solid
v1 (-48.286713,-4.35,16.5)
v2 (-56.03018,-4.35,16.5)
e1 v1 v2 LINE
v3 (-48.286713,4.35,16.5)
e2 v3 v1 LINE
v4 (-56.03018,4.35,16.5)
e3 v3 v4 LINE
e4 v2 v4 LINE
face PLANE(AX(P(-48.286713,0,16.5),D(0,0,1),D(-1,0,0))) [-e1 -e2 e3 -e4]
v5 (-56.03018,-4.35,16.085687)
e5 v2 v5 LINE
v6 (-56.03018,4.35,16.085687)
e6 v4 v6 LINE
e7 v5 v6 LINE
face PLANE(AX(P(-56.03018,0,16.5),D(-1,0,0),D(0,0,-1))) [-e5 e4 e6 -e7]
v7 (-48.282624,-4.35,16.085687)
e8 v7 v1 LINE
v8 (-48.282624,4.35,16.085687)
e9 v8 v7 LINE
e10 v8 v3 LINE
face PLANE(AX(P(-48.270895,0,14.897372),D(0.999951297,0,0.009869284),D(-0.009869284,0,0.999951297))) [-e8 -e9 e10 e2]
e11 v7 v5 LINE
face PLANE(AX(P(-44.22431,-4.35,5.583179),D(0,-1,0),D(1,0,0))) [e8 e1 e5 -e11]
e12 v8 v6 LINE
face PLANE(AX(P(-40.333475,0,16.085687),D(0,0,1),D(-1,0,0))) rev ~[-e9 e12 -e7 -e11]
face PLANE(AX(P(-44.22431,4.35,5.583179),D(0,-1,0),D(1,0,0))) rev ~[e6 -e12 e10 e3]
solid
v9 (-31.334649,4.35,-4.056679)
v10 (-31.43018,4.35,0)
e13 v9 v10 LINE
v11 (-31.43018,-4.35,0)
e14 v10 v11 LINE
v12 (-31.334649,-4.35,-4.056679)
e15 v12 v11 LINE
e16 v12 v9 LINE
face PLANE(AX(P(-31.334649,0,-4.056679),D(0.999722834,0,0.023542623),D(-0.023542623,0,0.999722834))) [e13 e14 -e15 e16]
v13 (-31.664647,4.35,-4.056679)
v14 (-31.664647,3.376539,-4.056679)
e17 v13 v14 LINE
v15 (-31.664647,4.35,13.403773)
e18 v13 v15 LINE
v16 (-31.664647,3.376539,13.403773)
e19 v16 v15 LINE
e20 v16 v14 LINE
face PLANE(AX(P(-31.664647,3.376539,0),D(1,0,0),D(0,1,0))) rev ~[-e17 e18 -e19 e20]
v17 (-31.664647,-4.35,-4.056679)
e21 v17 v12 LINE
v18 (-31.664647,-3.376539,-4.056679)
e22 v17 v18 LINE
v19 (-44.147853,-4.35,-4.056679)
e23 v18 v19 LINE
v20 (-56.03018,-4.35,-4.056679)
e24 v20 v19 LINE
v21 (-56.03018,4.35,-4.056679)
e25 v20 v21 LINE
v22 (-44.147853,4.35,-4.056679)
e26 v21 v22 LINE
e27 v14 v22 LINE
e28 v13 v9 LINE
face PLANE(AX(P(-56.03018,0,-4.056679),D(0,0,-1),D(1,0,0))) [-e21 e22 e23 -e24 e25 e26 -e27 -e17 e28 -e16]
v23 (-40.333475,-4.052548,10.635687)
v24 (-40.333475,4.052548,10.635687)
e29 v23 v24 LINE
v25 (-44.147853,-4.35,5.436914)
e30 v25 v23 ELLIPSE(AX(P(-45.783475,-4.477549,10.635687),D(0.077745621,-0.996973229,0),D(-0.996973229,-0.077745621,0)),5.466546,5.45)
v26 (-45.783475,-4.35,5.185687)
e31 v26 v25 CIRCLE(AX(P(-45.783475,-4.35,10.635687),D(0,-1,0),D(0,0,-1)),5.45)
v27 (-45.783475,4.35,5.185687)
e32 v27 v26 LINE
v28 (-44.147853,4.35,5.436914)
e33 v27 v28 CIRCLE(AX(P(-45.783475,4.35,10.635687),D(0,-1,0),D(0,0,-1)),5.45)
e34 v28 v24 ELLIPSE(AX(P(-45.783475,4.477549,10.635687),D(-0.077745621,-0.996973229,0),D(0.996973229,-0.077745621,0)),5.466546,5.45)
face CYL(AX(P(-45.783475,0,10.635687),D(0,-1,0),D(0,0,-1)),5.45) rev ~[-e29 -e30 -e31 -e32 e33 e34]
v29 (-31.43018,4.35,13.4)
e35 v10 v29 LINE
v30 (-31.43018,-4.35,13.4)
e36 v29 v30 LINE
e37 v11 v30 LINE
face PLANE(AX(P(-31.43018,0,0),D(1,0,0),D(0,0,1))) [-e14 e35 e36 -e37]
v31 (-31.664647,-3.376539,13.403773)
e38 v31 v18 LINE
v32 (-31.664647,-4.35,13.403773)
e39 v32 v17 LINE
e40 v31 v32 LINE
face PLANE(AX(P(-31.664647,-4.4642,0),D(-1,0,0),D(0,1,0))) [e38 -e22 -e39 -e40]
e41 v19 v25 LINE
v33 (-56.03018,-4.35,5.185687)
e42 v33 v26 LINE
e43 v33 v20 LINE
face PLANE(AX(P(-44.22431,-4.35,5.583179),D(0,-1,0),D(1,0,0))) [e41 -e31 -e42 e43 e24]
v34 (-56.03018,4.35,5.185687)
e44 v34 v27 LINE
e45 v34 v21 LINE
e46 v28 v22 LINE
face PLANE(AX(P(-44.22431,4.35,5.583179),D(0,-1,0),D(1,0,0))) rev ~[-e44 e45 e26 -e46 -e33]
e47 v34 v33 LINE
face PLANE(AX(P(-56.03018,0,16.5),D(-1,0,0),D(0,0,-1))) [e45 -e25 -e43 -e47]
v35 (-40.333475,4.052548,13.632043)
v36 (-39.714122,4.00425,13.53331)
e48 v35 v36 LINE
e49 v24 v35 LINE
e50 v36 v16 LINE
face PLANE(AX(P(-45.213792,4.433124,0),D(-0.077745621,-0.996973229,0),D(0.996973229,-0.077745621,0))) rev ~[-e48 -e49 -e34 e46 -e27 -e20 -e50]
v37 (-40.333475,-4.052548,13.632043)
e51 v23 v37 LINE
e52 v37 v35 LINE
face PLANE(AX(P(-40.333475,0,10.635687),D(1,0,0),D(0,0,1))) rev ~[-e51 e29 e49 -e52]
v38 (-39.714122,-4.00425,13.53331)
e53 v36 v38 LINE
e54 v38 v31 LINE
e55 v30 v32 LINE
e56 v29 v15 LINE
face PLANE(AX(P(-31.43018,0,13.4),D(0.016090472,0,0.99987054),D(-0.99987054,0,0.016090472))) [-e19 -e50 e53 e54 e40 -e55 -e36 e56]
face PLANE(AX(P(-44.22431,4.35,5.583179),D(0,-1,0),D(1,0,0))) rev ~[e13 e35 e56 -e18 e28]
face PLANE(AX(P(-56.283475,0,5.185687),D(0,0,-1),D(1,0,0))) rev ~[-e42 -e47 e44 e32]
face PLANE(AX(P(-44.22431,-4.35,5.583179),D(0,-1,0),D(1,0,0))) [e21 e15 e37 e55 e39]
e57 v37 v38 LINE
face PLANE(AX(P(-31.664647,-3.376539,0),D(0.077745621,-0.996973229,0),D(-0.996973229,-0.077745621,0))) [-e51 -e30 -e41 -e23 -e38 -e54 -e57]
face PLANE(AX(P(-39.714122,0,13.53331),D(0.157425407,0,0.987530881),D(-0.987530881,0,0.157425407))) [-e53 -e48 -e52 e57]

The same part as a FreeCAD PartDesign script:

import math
import FreeCAD as App
import Part
import Sketcher
from FreeCAD import Vector


def add_polygon(sketch, points):
    """Adds a closed chain of lines whose ends are joined by coincident constraints."""
    first, n = sketch.GeometryCount, len(points)
    for a, b in zip(points, points[1:] + points[:1]):
        sketch.addGeometry(Part.LineSegment(App.Vector(*a, 0), App.Vector(*b, 0)), False)
    for i in range(n):
        sketch.addConstraint(Sketcher.Constraint("Coincident", first + i, 2, first + (i + 1) % n, 1))

doc = App.newDocument("Part")
body = doc.addObject("PartDesign::Body", "Body")

# Sketch on XZ plane
sketch1 = body.newObject("Sketcher::SketchObject", "Sketch")
sketch1.AttachmentSupport = (doc.getObject("XZ_Plane"), [""])
sketch1.MapMode = "FlatFace"
add_polygon(sketch1, [(-31.3, -4.1), (-31.4, 0), (-31.4, 13.4), (-39.7, 13.5), (-48.3, 14.9), (-48.3, 16.5), (-56, 16.5), (-56, -4.1)])  # lines 0-7
sketch1.addConstraint([
    Sketcher.Constraint("Vertical", 1),
    Sketcher.Constraint("Horizontal", 5),
    Sketcher.Constraint("Vertical", 6),
    Sketcher.Constraint("Horizontal", 7),
    Sketcher.Constraint("PointOnObject", 0, 2, -1),
    Sketcher.Constraint("DistanceY", 1, 1, 1, 2, 13.4),
    Sketcher.Constraint("DistanceY", -1, 1, 4, 2, 16.5),
    Sketcher.Constraint("DistanceX", 5, 2, 1, 2, 24.6),
    Sketcher.Constraint("DistanceX", 7, 1, 7, 2, 24.695531),
    Sketcher.Constraint("DistanceY", 6, 2, 6, 1, 20.556679),
    Sketcher.Constraint("DistanceX", 5, 2, 5, 1, 7.743467),
    Sketcher.Constraint("DistanceX", 0, 2, -1, 1, 31.43018),
    Sketcher.Constraint("DistanceX", 2, 2, -1, 1, 39.714122),
    Sketcher.Constraint("DistanceY", -1, 1, 2, 2, 13.53331),
    Sketcher.Constraint("DistanceY", 6, 2, 3, 2, 18.954051),
    Sketcher.Constraint("Distance", 3, 8.664816),
])
pad1 = body.newObject("PartDesign::Pad", "Pad")
pad1.Profile = sketch1
pad1.Length = 8.7
pad1.Midplane = True
body2 = doc.addObject("PartDesign::Body", "Body001")

# Sketch on XZ plane
sketch2 = body2.newObject("Sketcher::SketchObject", "Sketch001")
sketch2.AttachmentSupport = (doc.getObject("XZ_Plane001"), [""])
sketch2.MapMode = "FlatFace"
sketch2.addGeometry([
    Part.LineSegment(Vector(-56, 16, 0), Vector(-56, 5, 0)),  # 0
    Part.LineSegment(Vector(-56, 5, 0), Vector(-46, 5, 0)),  # 1
    Part.ArcOfCircle(Part.Circle(Vector(-46, 11, 0), Vector(0, 0, 1), 5), math.radians(-90), math.radians(0)),  # 2
    Part.LineSegment(Vector(-40, 11, 0), Vector(-40, 16, 0)),  # 3
    Part.LineSegment(Vector(-40, 16, 0), Vector(-56, 16, 0)),  # 4
], False)
sketch2.addConstraint([
    Sketcher.Constraint("Coincident", 0, 2, 1, 1),
    Sketcher.Constraint("Tangent", 1, 2, 2, 1),
    Sketcher.Constraint("Tangent", 2, 2, 3, 1),
    Sketcher.Constraint("Coincident", 3, 2, 4, 1),
    Sketcher.Constraint("Coincident", 4, 2, 0, 1),
    Sketcher.Constraint("Vertical", 0),
    Sketcher.Constraint("Horizontal", 1),
    Sketcher.Constraint("Vertical", 3),
    Sketcher.Constraint("Horizontal", 4),
    Sketcher.Constraint("Radius", 2, 5.45),
    Sketcher.Constraint("DistanceX", 1, 1, 1, 2, 10.5),
    Sketcher.Constraint("DistanceY", 0, 2, 0, 1, 10.9),
    Sketcher.Constraint("DistanceX", 2, 3, -1, 1, 45.783475),
    Sketcher.Constraint("DistanceY", -1, 1, 2, 3, 10.635687),
])
pad2 = body2.newObject("PartDesign::Pad", "Pad001")
pad2.Profile = sketch2
pad2.Length = 8.7
pad2.Midplane = True
body3 = doc.addObject("PartDesign::Body", "Body002")
body3.AllowCompound = True

# Sketch on XY plane
sketch3 = body3.newObject("Sketcher::SketchObject", "Sketch002")
sketch3.AttachmentSupport = (doc.getObject("XY_Plane002"), [""])
sketch3.MapMode = "FlatFace"
add_polygon(sketch3, [(-31.7, -3.4), (-45.2, -4.4), (-31.7, -4.5)])  # lines 0-2
add_polygon(sketch3, [(-31.7, 4.5), (-45.2, 4.4), (-31.7, 3.4)])  # lines 3-5
sketch3.addConstraint([
    Sketcher.Constraint("Vertical", 2),
    Sketcher.Constraint("Vertical", 5),
    Sketcher.Constraint("Symmetric", 0, 2, 3, 2, -1),
    Sketcher.Constraint("Symmetric", 2, 2, 4, 2, -1),
    Sketcher.Constraint("Equal", 2, 5),
    Sketcher.Constraint("DistanceY", 2, 1, 2, 2, 1.087661),
    Sketcher.Constraint("DistanceY", 1, 2, -1, 1, 4.4642),
    Sketcher.Constraint("Distance", 0, 13.59028),
    Sketcher.Constraint("Distance", 1, 13.549181),
    Sketcher.Constraint("DistanceX", 0, 2, -1, 1, 45.213792),
])
pad3 = body3.newObject("PartDesign::Pad", "Pad002")
pad3.Profile = sketch3
pad3.Length = 27.5
pad3.Midplane = True
doc.recompute()

body4 = doc.addObject("PartDesign::Body", "Body003")
body4.BaseFeature = body3
boolean = body.newObject("PartDesign::Boolean", "Boolean")
boolean.Type = "Cut"
boolean.addObjects([body4])
doc.recompute()

boolean2 = body2.newObject("PartDesign::Boolean", "Boolean001")
boolean2.Type = "Cut"
boolean2.addObjects([body3])
body5 = doc.addObject("PartDesign::Body", "Body004")

# Sketch on XZ plane
sketch4 = body5.newObject("Sketcher::SketchObject", "Sketch003")
sketch4.AttachmentSupport = (doc.getObject("XZ_Plane004"), [""])
sketch4.MapMode = "FlatFace"
sketch4.addGeometry([
    Part.LineSegment(Vector(-56, 16, 0), Vector(-56, 5, 0)),  # 0
    Part.LineSegment(Vector(-56, 5, 0), Vector(-46, 5, 0)),  # 1
    Part.ArcOfCircle(Part.Circle(Vector(-46, 11, 0), Vector(0, 0, 1), 5), math.radians(-90), math.radians(0)),  # 2
    Part.LineSegment(Vector(-40, 11, 0), Vector(-40, 16, 0)),  # 3
    Part.LineSegment(Vector(-40, 16, 0), Vector(-56, 16, 0)),  # 4
], False)
sketch4.addConstraint([
    Sketcher.Constraint("Coincident", 0, 2, 1, 1),
    Sketcher.Constraint("Tangent", 1, 2, 2, 1),
    Sketcher.Constraint("Tangent", 2, 2, 3, 1),
    Sketcher.Constraint("Coincident", 3, 2, 4, 1),
    Sketcher.Constraint("Coincident", 4, 2, 0, 1),
    Sketcher.Constraint("Vertical", 0),
    Sketcher.Constraint("Horizontal", 1),
    Sketcher.Constraint("Vertical", 3),
    Sketcher.Constraint("Horizontal", 4),
    Sketcher.Constraint("Radius", 2, 5.45),
    Sketcher.Constraint("DistanceX", 1, 1, 1, 2, 10.5),
    Sketcher.Constraint("DistanceY", 0, 2, 0, 1, 10.9),
    Sketcher.Constraint("DistanceX", 2, 3, -1, 1, 45.783475),
    Sketcher.Constraint("DistanceY", -1, 1, 2, 3, 10.635687),
])
pad4 = body5.newObject("PartDesign::Pad", "Pad003")
pad4.Profile = sketch4
pad4.Length = 21
pad4.Midplane = True
body.AllowCompound = True
doc.recompute()

body6 = doc.addObject("PartDesign::Body", "Body005")
body6.BaseFeature = body5
boolean3 = body.newObject("PartDesign::Boolean", "Boolean002")
boolean3.Type = "Cut"
boolean3.addObjects([body6])
doc.recompute()

boolean4 = body2.newObject("PartDesign::Boolean", "Boolean003")
boolean4.Type = "Cut"
boolean4.addObjects([body5])

doc.recompute()
